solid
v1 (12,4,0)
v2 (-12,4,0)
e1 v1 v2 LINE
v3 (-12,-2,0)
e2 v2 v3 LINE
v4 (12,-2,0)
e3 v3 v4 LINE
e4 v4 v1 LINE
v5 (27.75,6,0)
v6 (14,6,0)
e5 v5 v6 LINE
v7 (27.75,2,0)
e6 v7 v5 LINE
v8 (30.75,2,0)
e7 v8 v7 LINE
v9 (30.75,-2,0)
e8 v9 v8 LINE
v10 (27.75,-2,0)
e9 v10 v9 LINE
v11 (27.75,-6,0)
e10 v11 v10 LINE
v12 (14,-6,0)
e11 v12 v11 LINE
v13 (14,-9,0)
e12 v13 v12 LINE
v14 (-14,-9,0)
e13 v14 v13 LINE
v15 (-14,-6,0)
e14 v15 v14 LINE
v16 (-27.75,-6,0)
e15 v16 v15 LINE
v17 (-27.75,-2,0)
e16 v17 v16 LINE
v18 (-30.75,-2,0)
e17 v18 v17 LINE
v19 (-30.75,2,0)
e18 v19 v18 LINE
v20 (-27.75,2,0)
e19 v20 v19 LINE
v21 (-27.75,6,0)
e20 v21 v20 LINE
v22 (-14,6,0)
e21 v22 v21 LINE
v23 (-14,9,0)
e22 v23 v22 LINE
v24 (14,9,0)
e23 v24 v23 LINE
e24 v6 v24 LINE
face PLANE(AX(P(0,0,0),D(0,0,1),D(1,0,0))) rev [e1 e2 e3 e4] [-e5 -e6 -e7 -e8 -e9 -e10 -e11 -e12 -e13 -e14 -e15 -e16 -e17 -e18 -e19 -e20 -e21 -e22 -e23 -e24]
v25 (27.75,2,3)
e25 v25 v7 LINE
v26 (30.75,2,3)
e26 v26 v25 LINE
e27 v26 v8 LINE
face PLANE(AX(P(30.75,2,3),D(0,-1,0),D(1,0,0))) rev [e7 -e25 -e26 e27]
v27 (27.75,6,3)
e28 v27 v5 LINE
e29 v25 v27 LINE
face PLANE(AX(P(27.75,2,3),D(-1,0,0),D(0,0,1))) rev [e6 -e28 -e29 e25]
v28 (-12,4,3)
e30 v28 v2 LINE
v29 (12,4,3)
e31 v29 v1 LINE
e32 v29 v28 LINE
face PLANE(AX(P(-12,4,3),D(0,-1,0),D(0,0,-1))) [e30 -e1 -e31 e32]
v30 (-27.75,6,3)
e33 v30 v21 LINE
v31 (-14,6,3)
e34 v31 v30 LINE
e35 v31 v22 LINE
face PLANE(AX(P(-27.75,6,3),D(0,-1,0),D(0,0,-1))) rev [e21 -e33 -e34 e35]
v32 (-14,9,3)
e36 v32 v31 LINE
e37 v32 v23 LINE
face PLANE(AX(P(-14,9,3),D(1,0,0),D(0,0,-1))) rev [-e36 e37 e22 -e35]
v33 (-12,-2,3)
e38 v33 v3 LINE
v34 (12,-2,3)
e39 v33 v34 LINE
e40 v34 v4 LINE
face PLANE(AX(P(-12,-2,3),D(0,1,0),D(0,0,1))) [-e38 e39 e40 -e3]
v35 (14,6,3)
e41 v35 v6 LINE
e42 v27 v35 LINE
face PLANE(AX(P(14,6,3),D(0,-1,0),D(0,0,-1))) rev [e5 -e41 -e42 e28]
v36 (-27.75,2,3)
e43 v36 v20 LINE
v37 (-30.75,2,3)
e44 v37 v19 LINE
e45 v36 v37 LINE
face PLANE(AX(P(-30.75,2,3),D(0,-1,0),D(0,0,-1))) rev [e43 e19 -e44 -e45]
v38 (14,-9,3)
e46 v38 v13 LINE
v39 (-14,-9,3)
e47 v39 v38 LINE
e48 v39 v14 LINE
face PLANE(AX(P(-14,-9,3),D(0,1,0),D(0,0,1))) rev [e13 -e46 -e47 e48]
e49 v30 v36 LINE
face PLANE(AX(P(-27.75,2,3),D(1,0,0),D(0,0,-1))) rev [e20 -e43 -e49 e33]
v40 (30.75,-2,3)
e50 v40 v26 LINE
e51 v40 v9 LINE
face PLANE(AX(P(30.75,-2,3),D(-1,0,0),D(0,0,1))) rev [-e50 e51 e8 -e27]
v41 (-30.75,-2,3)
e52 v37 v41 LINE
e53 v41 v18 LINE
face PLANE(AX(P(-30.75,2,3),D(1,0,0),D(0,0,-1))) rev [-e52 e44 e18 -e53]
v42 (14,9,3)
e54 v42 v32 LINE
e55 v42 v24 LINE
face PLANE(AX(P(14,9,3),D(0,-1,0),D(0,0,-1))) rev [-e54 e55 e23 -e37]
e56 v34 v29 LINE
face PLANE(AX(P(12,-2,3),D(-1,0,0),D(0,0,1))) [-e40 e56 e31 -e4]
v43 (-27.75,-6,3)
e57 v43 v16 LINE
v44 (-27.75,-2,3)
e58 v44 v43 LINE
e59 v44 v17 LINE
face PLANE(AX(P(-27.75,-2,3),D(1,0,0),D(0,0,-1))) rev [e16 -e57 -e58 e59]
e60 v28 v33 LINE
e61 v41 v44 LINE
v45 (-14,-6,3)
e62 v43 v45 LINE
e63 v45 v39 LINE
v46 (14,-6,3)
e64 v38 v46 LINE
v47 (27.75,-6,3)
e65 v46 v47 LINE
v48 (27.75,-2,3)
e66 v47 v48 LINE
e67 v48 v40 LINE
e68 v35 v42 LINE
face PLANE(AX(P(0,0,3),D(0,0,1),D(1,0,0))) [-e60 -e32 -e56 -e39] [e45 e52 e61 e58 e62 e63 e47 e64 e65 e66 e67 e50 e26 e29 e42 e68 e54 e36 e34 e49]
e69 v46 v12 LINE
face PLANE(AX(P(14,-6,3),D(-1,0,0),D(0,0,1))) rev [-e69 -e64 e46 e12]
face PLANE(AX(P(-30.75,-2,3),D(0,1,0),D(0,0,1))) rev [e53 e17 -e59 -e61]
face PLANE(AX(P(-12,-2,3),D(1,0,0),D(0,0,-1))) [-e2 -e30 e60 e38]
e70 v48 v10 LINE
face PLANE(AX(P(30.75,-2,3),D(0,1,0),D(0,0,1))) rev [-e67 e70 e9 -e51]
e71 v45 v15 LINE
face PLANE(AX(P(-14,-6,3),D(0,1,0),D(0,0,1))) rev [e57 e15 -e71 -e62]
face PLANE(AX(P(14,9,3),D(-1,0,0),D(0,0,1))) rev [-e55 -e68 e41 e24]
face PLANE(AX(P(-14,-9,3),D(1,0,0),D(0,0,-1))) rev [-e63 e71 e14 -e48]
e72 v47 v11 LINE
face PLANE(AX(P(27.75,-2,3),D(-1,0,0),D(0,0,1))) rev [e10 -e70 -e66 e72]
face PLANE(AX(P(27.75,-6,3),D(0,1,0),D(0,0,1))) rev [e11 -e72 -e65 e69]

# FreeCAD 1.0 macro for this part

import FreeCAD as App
import Part
import Sketcher

V = App.Vector


def add_polygon(sketch, points):
    """Adds a closed chain of lines whose ends are joined by coincident constraints."""
    first, n = sketch.GeometryCount, len(points)
    for a, b in zip(points, points[1:] + points[:1]):
        sketch.addGeometry(Part.LineSegment(App.Vector(*a, 0), App.Vector(*b, 0)), False)
    for i in range(n):
        sketch.addConstraint(Sketcher.Constraint("Coincident", first + i, 2, first + (i + 1) % n, 1))

doc = App.newDocument("Part")
body = doc.addObject("PartDesign::Body", "Body")

sketch1 = doc.addObject("Sketcher::SketchObject", "Sketch")
body.addObject(sketch1)
sketch1.AttachmentSupport = (doc.XY_Plane, [""])
sketch1.MapMode = "FlatFace"
add_polygon(sketch1, [(-14, -9), (14, -9), (14, -6), (27.75, -6), (27.75, -2), (30.75, -2), (30.75, 2), (27.75, 2), (27.75, 6), (14, 6), (14, 9), (-14, 9), (-14, 6), (-27.75, 6), (-27.75, 2), (-30.75, 2), (-30.75, -2), (-27.75, -2), (-27.75, -6), (-14, -6)])
add_polygon(sketch1, [(12, -2), (-12, -2), (-12, 4), (12, 4)])
sketch1.addConstraint(Sketcher.Constraint("Horizontal", 0))
sketch1.addConstraint(Sketcher.Constraint("Vertical", 1))
sketch1.addConstraint(Sketcher.Constraint("Horizontal", 2))
sketch1.addConstraint(Sketcher.Constraint("Vertical", 3))
sketch1.addConstraint(Sketcher.Constraint("Horizontal", 4))
sketch1.addConstraint(Sketcher.Constraint("Vertical", 5))
sketch1.addConstraint(Sketcher.Constraint("Horizontal", 6))
sketch1.addConstraint(Sketcher.Constraint("Vertical", 7))
sketch1.addConstraint(Sketcher.Constraint("Horizontal", 8))
sketch1.addConstraint(Sketcher.Constraint("Vertical", 9))
sketch1.addConstraint(Sketcher.Constraint("Horizontal", 10))
sketch1.addConstraint(Sketcher.Constraint("Vertical", 11))
sketch1.addConstraint(Sketcher.Constraint("Horizontal", 12))
sketch1.addConstraint(Sketcher.Constraint("Vertical", 13))
sketch1.addConstraint(Sketcher.Constraint("Horizontal", 14))
sketch1.addConstraint(Sketcher.Constraint("Vertical", 15))
sketch1.addConstraint(Sketcher.Constraint("Horizontal", 16))
sketch1.addConstraint(Sketcher.Constraint("Vertical", 17))
sketch1.addConstraint(Sketcher.Constraint("Horizontal", 18))
sketch1.addConstraint(Sketcher.Constraint("Vertical", 19))
sketch1.addConstraint(Sketcher.Constraint("Horizontal", 20))
sketch1.addConstraint(Sketcher.Constraint("Vertical", 21))
sketch1.addConstraint(Sketcher.Constraint("Horizontal", 22))
sketch1.addConstraint(Sketcher.Constraint("Vertical", 23))
sketch1.addConstraint(Sketcher.Constraint("Symmetric", 0, 2, 10, 2, -1, 1))
sketch1.addConstraint(Sketcher.Constraint("Symmetric", 2, 2, 12, 2, -1, 1))
sketch1.addConstraint(Sketcher.Constraint("Symmetric", 4, 2, 14, 2, -1, 1))
sketch1.addConstraint(Sketcher.Constraint("Symmetric", 6, 2, 16, 2, -1, 1))
sketch1.addConstraint(Sketcher.Constraint("Symmetric", 8, 2, 18, 2, -1, 1))
sketch1.addConstraint(Sketcher.Constraint("Symmetric", 8, 2, 11, 2, -2))
sketch1.addConstraint(Sketcher.Constraint("Symmetric", 6, 2, 13, 2, -2))
sketch1.addConstraint(Sketcher.Constraint("Horizontal", 16, 2, 20, 2))
sketch1.addConstraint(Sketcher.Constraint("Equal", 16, 1))
sketch1.addConstraint(Sketcher.Constraint("Equal", 3, 5))
sketch1.addConstraint(Sketcher.Constraint("DistanceX", 0, 1, 0, 2, 28.0))
sketch1.addConstraint(Sketcher.Constraint("DistanceX", 4, 1, 4, 2, 3.0))
sketch1.addConstraint(Sketcher.Constraint("DistanceX", 20, 2, 20, 1, 24.0))
sketch1.addConstraint(Sketcher.Constraint("DistanceY", 3, 1, 3, 2, 4.0))
sketch1.addConstraint(Sketcher.Constraint("DistanceY", 21, 1, 21, 2, 6.0))
sketch1.addConstraint(Sketcher.Constraint("DistanceX", 20, 2, -1, 1, 12.0))
sketch1.addConstraint(Sketcher.Constraint("DistanceX", 2, 1, 2, 2, 13.75))
pad1 = doc.addObject("PartDesign::Pad", "Pad")
body.addObject(pad1)
pad1.Profile = sketch1
pad1.Length = 3

doc.recompute()
